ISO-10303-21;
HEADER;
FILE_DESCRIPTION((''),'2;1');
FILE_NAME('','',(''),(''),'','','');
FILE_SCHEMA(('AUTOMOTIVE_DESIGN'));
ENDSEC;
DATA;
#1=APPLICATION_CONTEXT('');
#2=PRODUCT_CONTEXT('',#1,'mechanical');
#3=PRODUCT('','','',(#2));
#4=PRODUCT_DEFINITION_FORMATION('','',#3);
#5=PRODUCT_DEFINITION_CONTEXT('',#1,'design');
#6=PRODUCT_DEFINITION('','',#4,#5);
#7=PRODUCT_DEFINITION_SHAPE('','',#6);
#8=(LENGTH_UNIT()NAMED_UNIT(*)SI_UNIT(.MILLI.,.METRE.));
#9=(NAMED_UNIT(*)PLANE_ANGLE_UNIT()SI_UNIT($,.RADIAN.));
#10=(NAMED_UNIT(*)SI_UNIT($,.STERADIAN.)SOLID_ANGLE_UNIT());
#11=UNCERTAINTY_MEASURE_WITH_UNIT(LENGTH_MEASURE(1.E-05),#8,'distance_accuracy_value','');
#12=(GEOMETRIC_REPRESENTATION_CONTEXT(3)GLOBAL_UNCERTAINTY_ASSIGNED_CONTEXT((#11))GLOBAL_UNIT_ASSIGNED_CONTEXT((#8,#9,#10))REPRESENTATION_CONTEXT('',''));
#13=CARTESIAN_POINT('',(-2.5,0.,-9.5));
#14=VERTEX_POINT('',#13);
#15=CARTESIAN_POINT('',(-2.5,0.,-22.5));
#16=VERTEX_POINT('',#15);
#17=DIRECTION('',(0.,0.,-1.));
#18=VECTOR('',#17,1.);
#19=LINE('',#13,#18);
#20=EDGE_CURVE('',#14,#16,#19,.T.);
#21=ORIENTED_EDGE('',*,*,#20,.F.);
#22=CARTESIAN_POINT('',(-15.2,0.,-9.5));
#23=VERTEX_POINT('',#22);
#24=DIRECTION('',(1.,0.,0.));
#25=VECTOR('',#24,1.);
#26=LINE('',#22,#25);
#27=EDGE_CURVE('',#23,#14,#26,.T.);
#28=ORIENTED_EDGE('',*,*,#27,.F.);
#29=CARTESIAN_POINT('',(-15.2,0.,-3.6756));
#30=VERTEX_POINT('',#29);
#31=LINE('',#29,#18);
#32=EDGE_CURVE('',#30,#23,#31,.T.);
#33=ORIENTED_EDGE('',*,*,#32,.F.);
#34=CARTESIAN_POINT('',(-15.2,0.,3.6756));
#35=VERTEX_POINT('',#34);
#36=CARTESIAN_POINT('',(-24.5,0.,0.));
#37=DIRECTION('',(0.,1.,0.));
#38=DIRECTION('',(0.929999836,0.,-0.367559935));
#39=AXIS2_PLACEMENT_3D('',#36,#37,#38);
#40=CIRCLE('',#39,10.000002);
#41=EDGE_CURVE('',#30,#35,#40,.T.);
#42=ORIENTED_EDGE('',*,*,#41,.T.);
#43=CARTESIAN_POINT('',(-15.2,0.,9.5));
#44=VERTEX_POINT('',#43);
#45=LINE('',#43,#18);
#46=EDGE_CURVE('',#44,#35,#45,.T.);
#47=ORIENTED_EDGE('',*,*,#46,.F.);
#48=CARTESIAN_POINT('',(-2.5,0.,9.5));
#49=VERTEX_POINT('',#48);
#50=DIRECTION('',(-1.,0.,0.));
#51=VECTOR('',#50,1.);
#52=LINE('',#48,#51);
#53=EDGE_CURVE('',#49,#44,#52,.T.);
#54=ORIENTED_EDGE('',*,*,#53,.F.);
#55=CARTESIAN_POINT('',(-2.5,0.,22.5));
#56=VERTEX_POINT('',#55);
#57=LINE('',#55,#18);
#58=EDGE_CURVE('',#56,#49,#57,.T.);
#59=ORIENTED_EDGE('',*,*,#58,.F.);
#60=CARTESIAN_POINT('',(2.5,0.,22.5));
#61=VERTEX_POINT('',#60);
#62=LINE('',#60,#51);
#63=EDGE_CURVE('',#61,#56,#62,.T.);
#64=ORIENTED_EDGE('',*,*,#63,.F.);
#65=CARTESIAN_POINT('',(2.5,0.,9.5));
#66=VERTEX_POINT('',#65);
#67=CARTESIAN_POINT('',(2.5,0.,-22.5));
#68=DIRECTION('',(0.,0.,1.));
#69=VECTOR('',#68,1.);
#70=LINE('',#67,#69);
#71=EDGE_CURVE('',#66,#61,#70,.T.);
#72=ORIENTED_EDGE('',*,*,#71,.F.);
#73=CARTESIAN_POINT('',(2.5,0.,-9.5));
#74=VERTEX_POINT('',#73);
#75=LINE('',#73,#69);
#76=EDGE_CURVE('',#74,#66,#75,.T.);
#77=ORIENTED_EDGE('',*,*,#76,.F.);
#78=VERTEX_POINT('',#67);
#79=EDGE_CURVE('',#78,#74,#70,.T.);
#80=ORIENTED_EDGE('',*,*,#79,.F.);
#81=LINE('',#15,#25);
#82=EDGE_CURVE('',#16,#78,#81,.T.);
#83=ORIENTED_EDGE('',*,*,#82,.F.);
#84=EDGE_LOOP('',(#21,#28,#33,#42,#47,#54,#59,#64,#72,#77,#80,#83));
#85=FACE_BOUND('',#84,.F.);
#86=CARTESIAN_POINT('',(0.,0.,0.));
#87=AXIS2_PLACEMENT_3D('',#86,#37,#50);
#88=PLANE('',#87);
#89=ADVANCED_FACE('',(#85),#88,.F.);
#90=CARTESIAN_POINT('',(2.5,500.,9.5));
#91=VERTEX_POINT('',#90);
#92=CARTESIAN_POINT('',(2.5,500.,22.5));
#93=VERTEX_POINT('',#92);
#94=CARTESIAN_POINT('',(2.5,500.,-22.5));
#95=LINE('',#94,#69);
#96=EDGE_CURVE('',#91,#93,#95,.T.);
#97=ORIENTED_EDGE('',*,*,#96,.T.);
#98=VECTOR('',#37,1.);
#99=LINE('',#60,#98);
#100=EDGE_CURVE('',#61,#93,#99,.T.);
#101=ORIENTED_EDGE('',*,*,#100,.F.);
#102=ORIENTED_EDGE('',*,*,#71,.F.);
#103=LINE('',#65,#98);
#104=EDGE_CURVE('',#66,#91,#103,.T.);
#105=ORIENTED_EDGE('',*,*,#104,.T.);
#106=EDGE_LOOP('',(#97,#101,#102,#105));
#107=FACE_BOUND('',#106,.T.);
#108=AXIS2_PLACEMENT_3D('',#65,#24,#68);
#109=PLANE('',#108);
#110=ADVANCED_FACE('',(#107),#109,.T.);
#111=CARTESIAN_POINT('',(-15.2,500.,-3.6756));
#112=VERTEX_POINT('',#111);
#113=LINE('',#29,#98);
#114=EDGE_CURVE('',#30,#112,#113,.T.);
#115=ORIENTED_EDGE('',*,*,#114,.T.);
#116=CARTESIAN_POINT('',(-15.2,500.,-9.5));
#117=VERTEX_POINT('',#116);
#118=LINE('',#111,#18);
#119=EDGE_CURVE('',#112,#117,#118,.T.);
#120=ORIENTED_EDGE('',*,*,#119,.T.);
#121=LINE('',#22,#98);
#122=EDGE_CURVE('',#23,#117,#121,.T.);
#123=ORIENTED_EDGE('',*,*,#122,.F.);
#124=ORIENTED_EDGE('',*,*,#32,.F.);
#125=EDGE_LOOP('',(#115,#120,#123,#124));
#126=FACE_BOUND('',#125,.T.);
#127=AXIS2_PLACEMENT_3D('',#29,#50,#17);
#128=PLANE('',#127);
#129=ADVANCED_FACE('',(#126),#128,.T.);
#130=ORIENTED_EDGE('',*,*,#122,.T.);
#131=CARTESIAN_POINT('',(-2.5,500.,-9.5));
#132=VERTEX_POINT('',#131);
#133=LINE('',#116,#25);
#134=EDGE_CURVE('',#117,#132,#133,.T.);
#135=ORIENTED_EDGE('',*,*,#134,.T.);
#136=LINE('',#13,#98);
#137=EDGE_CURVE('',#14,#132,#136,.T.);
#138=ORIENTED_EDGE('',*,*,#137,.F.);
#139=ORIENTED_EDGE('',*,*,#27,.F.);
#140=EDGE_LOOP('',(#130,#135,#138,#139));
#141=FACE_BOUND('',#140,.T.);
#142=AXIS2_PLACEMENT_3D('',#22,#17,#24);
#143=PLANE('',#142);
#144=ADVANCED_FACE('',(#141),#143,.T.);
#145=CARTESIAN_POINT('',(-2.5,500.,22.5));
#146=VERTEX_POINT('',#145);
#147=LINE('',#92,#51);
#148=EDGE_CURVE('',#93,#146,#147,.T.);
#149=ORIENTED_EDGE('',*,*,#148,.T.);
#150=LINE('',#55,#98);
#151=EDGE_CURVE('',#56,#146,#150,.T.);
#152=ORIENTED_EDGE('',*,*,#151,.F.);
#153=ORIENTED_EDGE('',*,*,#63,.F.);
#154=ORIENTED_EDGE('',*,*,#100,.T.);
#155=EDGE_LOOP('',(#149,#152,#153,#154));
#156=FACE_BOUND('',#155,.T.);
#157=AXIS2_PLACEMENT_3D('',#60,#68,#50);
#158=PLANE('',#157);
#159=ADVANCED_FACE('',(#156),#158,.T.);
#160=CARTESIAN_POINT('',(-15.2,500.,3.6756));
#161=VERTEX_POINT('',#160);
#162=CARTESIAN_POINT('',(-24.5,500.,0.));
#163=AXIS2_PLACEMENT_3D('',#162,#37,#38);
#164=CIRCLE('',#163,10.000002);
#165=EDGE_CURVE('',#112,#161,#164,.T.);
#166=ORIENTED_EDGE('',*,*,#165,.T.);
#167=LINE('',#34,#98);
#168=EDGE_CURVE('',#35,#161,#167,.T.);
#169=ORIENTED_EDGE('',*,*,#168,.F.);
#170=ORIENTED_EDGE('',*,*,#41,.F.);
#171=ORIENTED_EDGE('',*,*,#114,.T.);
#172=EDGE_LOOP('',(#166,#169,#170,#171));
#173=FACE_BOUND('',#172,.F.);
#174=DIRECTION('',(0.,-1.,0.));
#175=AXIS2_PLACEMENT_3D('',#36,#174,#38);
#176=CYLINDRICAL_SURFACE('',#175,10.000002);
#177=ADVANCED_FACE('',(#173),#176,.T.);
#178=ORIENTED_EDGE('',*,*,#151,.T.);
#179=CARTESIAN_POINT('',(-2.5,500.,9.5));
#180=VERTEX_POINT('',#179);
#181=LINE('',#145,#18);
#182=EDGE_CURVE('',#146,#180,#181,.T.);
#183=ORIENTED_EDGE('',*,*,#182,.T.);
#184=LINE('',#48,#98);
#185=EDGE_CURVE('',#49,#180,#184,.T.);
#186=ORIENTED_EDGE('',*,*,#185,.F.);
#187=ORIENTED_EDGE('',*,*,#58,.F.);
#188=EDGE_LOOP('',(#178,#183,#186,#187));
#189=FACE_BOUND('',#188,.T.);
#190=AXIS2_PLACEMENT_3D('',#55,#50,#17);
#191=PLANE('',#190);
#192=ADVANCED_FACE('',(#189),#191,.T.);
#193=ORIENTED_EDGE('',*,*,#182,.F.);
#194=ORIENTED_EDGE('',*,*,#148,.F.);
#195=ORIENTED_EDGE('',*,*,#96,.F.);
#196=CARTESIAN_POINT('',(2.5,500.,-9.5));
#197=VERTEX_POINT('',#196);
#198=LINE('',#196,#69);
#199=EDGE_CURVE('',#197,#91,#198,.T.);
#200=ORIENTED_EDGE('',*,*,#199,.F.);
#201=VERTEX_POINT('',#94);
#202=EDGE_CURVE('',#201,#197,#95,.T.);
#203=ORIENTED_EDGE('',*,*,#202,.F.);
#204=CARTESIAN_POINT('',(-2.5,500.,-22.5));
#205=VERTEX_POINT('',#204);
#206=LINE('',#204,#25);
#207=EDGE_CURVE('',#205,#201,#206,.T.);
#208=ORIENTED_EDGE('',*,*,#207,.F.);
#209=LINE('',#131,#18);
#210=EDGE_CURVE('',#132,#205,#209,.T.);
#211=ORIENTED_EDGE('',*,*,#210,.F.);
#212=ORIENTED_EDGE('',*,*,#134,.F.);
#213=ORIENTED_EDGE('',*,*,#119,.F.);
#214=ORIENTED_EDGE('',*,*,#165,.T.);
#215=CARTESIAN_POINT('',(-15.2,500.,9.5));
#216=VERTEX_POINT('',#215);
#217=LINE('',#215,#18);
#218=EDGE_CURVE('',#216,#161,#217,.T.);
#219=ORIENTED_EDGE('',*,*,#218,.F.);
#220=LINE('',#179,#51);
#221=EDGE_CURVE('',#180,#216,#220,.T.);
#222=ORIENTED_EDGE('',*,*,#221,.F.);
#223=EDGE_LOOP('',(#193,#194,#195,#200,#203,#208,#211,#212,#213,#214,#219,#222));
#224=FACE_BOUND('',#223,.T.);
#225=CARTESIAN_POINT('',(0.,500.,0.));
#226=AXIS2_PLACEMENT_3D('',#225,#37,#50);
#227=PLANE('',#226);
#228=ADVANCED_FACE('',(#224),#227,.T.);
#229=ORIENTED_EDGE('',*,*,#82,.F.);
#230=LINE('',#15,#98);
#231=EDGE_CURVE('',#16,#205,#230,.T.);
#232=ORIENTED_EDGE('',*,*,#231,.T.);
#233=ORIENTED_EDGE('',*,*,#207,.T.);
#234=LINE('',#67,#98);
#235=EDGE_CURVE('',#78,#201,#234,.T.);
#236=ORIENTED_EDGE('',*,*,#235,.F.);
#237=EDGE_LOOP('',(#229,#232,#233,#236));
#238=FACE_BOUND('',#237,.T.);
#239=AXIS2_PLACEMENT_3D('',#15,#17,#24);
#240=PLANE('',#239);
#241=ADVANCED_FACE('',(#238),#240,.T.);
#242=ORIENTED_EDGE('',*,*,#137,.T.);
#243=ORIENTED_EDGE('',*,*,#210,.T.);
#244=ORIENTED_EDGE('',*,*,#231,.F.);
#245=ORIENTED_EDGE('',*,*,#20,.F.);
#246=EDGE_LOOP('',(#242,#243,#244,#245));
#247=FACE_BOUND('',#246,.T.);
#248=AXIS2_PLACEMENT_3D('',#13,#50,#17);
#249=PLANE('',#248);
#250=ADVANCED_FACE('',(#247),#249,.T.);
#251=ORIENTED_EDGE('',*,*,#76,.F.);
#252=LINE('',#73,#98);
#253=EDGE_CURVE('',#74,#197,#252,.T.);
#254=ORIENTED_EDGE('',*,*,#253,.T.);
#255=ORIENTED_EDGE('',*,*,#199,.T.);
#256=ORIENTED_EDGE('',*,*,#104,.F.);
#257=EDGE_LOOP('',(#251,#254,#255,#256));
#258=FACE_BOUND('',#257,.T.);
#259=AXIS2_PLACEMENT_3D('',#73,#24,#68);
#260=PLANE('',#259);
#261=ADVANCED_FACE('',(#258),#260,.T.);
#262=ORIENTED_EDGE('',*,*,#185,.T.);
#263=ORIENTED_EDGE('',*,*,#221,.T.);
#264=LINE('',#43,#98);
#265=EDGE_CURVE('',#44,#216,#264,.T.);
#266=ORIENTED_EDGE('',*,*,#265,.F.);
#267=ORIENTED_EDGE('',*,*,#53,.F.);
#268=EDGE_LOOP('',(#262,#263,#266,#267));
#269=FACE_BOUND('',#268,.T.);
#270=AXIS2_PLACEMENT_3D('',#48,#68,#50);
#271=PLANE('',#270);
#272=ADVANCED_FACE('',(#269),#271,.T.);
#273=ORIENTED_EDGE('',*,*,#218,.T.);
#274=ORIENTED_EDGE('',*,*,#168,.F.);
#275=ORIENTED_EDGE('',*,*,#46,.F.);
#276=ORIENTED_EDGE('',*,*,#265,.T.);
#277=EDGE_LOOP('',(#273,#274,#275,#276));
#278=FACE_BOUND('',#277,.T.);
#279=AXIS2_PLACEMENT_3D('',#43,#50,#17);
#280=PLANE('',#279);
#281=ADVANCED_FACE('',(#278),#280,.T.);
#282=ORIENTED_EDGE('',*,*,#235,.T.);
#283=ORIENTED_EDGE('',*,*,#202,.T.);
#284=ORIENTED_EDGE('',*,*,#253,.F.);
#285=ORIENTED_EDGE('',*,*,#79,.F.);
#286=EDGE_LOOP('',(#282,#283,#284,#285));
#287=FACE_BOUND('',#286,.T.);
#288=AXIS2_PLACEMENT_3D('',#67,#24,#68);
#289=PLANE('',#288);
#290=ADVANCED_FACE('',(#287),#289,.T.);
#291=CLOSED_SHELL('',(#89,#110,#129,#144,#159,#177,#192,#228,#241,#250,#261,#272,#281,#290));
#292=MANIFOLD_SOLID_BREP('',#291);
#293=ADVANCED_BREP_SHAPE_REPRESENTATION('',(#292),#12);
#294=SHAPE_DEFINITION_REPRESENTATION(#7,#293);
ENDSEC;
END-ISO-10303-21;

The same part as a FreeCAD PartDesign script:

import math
import FreeCAD as App
import Part
import Sketcher
from FreeCAD import Vector
Q = App.Units.Quantity

doc = App.newDocument("Part")
params = doc.addObject("Spreadsheet::Sheet", "Params")
for row, (alias, value) in enumerate([
    ("sketch1_radius", "10 mm"),
    ("sketch1_width", "5 mm"),
    ("sketch1_height", "45 mm"),
    ("sketch1_height2", "13 mm"),
    ("sketch1_width2", "12.7 mm"),
    ("pad1_length", "500 mm"),
], start=1):
    params.set(f"A{row}", alias)
    params.set(f"B{row}", "=" + value)
    params.setAlias(f"B{row}", alias)

body = doc.addObject("PartDesign::Body", "Body")

# Sketch on XZ plane
sketch1 = doc.addObject("Sketcher::SketchObject", "Sketch")
body.addObject(sketch1)
sketch1.AttachmentSupport = (doc.XZ_Plane, [""])
sketch1.MapMode = "FlatFace"
sketch1.addGeometry(Part.LineSegment(Vector(-2.5, 22.5, 0), Vector(2.5, 22.5, 0)), False)
sketch1.addGeometry(Part.LineSegment(Vector(2.5, 22.5, 0), Vector(2.5, -22.5, 0)), False)
sketch1.addGeometry(Part.LineSegment(Vector(2.5, -22.5, 0), Vector(-2.5, -22.5, 0)), False)
sketch1.addGeometry(Part.LineSegment(Vector(-2.5, -22.5, 0), Vector(-2.5, -9.5, 0)), False)
sketch1.addGeometry(Part.LineSegment(Vector(-2.5, -9.5, 0), Vector(-15.2, -9.5, 0)), False)
sketch1.addGeometry(Part.LineSegment(Vector(-15.2, -9.5, 0), Vector(-15.2, -3.6756, 0)), False)
sketch1.addGeometry(Part.ArcOfCircle(Part.Circle(Vector(-24.5, 0, 0), Vector(0, 0, 1), 10.000002), math.radians(21.565211), math.radians(338.434789)), False)
sketch1.addGeometry(Part.LineSegment(Vector(-15.2, 3.6756, 0), Vector(-15.2, 9.5, 0)), False)
sketch1.addGeometry(Part.LineSegment(Vector(-15.2, 9.5, 0), Vector(-2.5, 9.5, 0)), False)
sketch1.addGeometry(Part.LineSegment(Vector(-2.5, 9.5, 0), Vector(-2.5, 22.5, 0)), False)
sketch1.addConstraint(Sketcher.Constraint("Coincident", 0, 2, 1, 1))
sketch1.addConstraint(Sketcher.Constraint("Coincident", 1, 2, 2, 1))
sketch1.addConstraint(Sketcher.Constraint("Coincident", 2, 2, 3, 1))
sketch1.addConstraint(Sketcher.Constraint("Coincident", 3, 2, 4, 1))
sketch1.addConstraint(Sketcher.Constraint("Coincident", 4, 2, 5, 1))
sketch1.addConstraint(Sketcher.Constraint("Coincident", 5, 2, 6, 2))
sketch1.addConstraint(Sketcher.Constraint("Coincident", 6, 1, 7, 1))
sketch1.addConstraint(Sketcher.Constraint("Coincident", 7, 2, 8, 1))
sketch1.addConstraint(Sketcher.Constraint("Coincident", 8, 2, 9, 1))
sketch1.addConstraint(Sketcher.Constraint("Coincident", 9, 2, 0, 1))
sketch1.addConstraint(Sketcher.Constraint("Horizontal", 0))
sketch1.addConstraint(Sketcher.Constraint("Vertical", 1))
sketch1.addConstraint(Sketcher.Constraint("Horizontal", 2))
sketch1.addConstraint(Sketcher.Constraint("Vertical", 3))
sketch1.addConstraint(Sketcher.Constraint("Horizontal", 4))
sketch1.addConstraint(Sketcher.Constraint("Vertical", 5))
sketch1.addConstraint(Sketcher.Constraint("Vertical", 7))
sketch1.addConstraint(Sketcher.Constraint("Horizontal", 8))
sketch1.addConstraint(Sketcher.Constraint("Vertical", 9))
sketch1.addConstraint(Sketcher.Constraint("Symmetric", 0, 2, 2, 2, -1, 1))
sketch1.addConstraint(Sketcher.Constraint("Symmetric", 5, 2, 6, 1, -1))
sketch1.addConstraint(Sketcher.Constraint("Symmetric", 3, 2, 8, 2, -1))
sketch1.addConstraint(Sketcher.Constraint("Radius", 6, Q("10 mm")))
sketch1.addConstraint(Sketcher.Constraint("DistanceX", 0, 1, 0, 2, Q("5 mm")))
sketch1.addConstraint(Sketcher.Constraint("DistanceY", 1, 2, 1, 1, Q("45 mm")))
sketch1.addConstraint(Sketcher.Constraint("DistanceY", 3, 1, 3, 2, Q("13 mm")))
sketch1.addConstraint(Sketcher.Constraint("DistanceX", 4, 2, 4, 1, Q("12.7 mm")))
sketch1.addConstraint(Sketcher.Constraint("DistanceX", 6, 3, 0, 2, Q("27 mm")))
sketch1.setExpression("Constraints[22]", "Params.sketch1_radius")
sketch1.setExpression("Constraints[23]", "Params.sketch1_width")
sketch1.setExpression("Constraints[24]", "Params.sketch1_height")
sketch1.setExpression("Constraints[25]", "Params.sketch1_height2")
sketch1.setExpression("Constraints[26]", "Params.sketch1_width2")
pad1 = doc.addObject("PartDesign::Pad", "Pad")
body.addObject(pad1)
pad1.Profile = sketch1
pad1.setExpression("Length", "Params.pad1_length")
pad1.Reversed = True

doc.recompute()
